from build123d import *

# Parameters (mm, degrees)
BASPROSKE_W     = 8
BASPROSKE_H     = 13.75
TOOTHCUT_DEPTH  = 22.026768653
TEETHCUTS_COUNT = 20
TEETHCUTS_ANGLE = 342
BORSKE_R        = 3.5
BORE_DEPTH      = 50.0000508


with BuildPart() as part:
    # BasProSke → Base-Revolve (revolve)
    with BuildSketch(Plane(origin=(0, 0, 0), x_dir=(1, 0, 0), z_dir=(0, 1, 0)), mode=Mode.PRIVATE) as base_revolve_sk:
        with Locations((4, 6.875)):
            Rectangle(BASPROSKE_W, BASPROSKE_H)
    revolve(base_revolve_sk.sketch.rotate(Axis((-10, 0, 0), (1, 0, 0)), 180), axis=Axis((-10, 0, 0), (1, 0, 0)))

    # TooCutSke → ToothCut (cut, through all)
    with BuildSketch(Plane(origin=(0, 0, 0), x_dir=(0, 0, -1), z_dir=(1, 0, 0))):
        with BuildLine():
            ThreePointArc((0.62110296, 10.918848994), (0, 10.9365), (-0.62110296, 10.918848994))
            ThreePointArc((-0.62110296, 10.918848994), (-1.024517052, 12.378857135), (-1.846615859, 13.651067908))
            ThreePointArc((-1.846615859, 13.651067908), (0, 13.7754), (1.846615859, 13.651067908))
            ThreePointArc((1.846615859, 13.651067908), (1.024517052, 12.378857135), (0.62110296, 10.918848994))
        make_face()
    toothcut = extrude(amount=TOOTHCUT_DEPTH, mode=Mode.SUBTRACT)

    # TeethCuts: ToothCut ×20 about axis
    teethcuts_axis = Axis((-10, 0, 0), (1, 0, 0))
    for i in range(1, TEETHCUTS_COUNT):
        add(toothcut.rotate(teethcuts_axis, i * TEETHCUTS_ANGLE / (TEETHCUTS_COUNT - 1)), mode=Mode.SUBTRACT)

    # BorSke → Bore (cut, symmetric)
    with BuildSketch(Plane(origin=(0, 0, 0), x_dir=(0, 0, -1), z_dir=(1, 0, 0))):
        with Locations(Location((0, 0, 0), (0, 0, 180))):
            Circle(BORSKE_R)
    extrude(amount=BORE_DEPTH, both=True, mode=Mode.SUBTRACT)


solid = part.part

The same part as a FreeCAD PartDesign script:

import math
import FreeCAD as App
import Part
import Sketcher
from FreeCAD import Vector


def add_polygon(sketch, points):
    """Adds a closed chain of lines whose ends are joined by coincident constraints."""
    first, n = sketch.GeometryCount, len(points)
    for a, b in zip(points, points[1:] + points[:1]):
        sketch.addGeometry(Part.LineSegment(App.Vector(*a, 0), App.Vector(*b, 0)), False)
    for i in range(n):
        sketch.addConstraint(Sketcher.Constraint("Coincident", first + i, 2, first + (i + 1) % n, 1))

doc = App.newDocument("Part")
body = doc.addObject("PartDesign::Body", "Body")

sketch1 = body.newObject("Sketcher::SketchObject", "Sketch")
sketch1.AttachmentSupport = (doc.getObject("XZ_Plane"), [""])
sketch1.MapMode = "FlatFace"
add_polygon(sketch1, [(0, -14), (0, 0), (8, 0), (8, -14)])
sketch1.addConstraint([
    Sketcher.Constraint("Vertical", 0),
    Sketcher.Constraint("Horizontal", 1),
    Sketcher.Constraint("Vertical", 2),
    Sketcher.Constraint("Horizontal", 3),
    Sketcher.Constraint("Coincident", 0, 2, -1, 1),
    Sketcher.Constraint("DistanceX", 1, 1, 1, 2, 8.0),
    Sketcher.Constraint("DistanceY", 0, 1, 0, 2, 13.75),
])
revolution = body.newObject("PartDesign::Revolution", "Revolution")
revolution.Profile = sketch1
revolution.ReferenceAxis = (sketch1, ["H_Axis"])
revolution.Angle = 360

sketch2 = body.newObject("Sketcher::SketchObject", "Sketch001")
sketch2.AttachmentSupport = (doc.getObject("YZ_Plane"), [""])
sketch2.MapMode = "FlatFace"
sketch2.addGeometry([
    Part.ArcOfCircle(Part.Circle(Vector(0, 0, 0), Vector(0, 0, 1), 10.9), math.radians(-3.26), math.radians(3.26)),
    Part.ArcOfCircle(Part.Circle(Vector(10.3, -5.6, 0), Vector(0, 0, 1), 5), math.radians(48), math.radians(83)),
    Part.ArcOfCircle(Part.Circle(Vector(0, 0, 0), Vector(0, 0, 1), 13.8), math.radians(-7.7), math.radians(7.7)),
    Part.ArcOfCircle(Part.Circle(Vector(10.3, 5.6, 0), Vector(0, 0, 1), 5), math.radians(-83), math.radians(-48)),
], False)
sketch2.addConstraint([
    Sketcher.Constraint("Coincident", 0, 1, 1, 2),
    Sketcher.Constraint("Coincident", 1, 1, 2, 1),
    Sketcher.Constraint("Coincident", 2, 2, 3, 2),
    Sketcher.Constraint("Coincident", 3, 1, 0, 2),
    Sketcher.Constraint("Coincident", 0, 3, -1, 1),
    Sketcher.Constraint("Coincident", 2, 3, -1, 1),
    Sketcher.Constraint("Equal", 1, 3),
    Sketcher.Constraint("Symmetric", 1, 3, 3, 3, -1),
    Sketcher.Constraint("Radius", 1, 5.0),
    Sketcher.Constraint("Radius", 0, 10.9365),
    Sketcher.Constraint("Radius", 2, 13.7754),
    Sketcher.Constraint("DistanceX", 1, 3, 1, 1, 3.318498),
    Sketcher.Constraint("DistanceX", -1, 1, 1, 3, 10.33257),
])
pocket1 = body.newObject("PartDesign::Pocket", "Pocket")
pocket1.Profile = sketch2
pocket1.Type = "ThroughAll"
pocket1.Reversed = True
doc.recompute()

polarpattern = body.newObject("PartDesign::PolarPattern", "PolarPattern")
polarpattern.Originals = [pocket1]
polarpattern.Axis = (doc.getObject("X_Axis"), [""])
polarpattern.Angle = 360
polarpattern.Occurrences = 20
body.Tip = polarpattern

sketch3 = body.newObject("Sketcher::SketchObject", "Sketch002")
sketch3.AttachmentSupport = (doc.getObject("YZ_Plane"), [""])
sketch3.MapMode = "FlatFace"
sketch3.addGeometry(Part.Circle(Vector(0, 0, 0), Vector(0, 0, 1), 3.5), False)
sketch3.addConstraint([
    Sketcher.Constraint("Coincident", 0, 3, -1, 1),
    Sketcher.Constraint("Diameter", 0, 7.0),
])
pocket2 = body.newObject("PartDesign::Pocket", "Pocket001")
pocket2.Profile = sketch3
pocket2.Length = 100.000102
pocket2.Midplane = True

doc.recompute()
